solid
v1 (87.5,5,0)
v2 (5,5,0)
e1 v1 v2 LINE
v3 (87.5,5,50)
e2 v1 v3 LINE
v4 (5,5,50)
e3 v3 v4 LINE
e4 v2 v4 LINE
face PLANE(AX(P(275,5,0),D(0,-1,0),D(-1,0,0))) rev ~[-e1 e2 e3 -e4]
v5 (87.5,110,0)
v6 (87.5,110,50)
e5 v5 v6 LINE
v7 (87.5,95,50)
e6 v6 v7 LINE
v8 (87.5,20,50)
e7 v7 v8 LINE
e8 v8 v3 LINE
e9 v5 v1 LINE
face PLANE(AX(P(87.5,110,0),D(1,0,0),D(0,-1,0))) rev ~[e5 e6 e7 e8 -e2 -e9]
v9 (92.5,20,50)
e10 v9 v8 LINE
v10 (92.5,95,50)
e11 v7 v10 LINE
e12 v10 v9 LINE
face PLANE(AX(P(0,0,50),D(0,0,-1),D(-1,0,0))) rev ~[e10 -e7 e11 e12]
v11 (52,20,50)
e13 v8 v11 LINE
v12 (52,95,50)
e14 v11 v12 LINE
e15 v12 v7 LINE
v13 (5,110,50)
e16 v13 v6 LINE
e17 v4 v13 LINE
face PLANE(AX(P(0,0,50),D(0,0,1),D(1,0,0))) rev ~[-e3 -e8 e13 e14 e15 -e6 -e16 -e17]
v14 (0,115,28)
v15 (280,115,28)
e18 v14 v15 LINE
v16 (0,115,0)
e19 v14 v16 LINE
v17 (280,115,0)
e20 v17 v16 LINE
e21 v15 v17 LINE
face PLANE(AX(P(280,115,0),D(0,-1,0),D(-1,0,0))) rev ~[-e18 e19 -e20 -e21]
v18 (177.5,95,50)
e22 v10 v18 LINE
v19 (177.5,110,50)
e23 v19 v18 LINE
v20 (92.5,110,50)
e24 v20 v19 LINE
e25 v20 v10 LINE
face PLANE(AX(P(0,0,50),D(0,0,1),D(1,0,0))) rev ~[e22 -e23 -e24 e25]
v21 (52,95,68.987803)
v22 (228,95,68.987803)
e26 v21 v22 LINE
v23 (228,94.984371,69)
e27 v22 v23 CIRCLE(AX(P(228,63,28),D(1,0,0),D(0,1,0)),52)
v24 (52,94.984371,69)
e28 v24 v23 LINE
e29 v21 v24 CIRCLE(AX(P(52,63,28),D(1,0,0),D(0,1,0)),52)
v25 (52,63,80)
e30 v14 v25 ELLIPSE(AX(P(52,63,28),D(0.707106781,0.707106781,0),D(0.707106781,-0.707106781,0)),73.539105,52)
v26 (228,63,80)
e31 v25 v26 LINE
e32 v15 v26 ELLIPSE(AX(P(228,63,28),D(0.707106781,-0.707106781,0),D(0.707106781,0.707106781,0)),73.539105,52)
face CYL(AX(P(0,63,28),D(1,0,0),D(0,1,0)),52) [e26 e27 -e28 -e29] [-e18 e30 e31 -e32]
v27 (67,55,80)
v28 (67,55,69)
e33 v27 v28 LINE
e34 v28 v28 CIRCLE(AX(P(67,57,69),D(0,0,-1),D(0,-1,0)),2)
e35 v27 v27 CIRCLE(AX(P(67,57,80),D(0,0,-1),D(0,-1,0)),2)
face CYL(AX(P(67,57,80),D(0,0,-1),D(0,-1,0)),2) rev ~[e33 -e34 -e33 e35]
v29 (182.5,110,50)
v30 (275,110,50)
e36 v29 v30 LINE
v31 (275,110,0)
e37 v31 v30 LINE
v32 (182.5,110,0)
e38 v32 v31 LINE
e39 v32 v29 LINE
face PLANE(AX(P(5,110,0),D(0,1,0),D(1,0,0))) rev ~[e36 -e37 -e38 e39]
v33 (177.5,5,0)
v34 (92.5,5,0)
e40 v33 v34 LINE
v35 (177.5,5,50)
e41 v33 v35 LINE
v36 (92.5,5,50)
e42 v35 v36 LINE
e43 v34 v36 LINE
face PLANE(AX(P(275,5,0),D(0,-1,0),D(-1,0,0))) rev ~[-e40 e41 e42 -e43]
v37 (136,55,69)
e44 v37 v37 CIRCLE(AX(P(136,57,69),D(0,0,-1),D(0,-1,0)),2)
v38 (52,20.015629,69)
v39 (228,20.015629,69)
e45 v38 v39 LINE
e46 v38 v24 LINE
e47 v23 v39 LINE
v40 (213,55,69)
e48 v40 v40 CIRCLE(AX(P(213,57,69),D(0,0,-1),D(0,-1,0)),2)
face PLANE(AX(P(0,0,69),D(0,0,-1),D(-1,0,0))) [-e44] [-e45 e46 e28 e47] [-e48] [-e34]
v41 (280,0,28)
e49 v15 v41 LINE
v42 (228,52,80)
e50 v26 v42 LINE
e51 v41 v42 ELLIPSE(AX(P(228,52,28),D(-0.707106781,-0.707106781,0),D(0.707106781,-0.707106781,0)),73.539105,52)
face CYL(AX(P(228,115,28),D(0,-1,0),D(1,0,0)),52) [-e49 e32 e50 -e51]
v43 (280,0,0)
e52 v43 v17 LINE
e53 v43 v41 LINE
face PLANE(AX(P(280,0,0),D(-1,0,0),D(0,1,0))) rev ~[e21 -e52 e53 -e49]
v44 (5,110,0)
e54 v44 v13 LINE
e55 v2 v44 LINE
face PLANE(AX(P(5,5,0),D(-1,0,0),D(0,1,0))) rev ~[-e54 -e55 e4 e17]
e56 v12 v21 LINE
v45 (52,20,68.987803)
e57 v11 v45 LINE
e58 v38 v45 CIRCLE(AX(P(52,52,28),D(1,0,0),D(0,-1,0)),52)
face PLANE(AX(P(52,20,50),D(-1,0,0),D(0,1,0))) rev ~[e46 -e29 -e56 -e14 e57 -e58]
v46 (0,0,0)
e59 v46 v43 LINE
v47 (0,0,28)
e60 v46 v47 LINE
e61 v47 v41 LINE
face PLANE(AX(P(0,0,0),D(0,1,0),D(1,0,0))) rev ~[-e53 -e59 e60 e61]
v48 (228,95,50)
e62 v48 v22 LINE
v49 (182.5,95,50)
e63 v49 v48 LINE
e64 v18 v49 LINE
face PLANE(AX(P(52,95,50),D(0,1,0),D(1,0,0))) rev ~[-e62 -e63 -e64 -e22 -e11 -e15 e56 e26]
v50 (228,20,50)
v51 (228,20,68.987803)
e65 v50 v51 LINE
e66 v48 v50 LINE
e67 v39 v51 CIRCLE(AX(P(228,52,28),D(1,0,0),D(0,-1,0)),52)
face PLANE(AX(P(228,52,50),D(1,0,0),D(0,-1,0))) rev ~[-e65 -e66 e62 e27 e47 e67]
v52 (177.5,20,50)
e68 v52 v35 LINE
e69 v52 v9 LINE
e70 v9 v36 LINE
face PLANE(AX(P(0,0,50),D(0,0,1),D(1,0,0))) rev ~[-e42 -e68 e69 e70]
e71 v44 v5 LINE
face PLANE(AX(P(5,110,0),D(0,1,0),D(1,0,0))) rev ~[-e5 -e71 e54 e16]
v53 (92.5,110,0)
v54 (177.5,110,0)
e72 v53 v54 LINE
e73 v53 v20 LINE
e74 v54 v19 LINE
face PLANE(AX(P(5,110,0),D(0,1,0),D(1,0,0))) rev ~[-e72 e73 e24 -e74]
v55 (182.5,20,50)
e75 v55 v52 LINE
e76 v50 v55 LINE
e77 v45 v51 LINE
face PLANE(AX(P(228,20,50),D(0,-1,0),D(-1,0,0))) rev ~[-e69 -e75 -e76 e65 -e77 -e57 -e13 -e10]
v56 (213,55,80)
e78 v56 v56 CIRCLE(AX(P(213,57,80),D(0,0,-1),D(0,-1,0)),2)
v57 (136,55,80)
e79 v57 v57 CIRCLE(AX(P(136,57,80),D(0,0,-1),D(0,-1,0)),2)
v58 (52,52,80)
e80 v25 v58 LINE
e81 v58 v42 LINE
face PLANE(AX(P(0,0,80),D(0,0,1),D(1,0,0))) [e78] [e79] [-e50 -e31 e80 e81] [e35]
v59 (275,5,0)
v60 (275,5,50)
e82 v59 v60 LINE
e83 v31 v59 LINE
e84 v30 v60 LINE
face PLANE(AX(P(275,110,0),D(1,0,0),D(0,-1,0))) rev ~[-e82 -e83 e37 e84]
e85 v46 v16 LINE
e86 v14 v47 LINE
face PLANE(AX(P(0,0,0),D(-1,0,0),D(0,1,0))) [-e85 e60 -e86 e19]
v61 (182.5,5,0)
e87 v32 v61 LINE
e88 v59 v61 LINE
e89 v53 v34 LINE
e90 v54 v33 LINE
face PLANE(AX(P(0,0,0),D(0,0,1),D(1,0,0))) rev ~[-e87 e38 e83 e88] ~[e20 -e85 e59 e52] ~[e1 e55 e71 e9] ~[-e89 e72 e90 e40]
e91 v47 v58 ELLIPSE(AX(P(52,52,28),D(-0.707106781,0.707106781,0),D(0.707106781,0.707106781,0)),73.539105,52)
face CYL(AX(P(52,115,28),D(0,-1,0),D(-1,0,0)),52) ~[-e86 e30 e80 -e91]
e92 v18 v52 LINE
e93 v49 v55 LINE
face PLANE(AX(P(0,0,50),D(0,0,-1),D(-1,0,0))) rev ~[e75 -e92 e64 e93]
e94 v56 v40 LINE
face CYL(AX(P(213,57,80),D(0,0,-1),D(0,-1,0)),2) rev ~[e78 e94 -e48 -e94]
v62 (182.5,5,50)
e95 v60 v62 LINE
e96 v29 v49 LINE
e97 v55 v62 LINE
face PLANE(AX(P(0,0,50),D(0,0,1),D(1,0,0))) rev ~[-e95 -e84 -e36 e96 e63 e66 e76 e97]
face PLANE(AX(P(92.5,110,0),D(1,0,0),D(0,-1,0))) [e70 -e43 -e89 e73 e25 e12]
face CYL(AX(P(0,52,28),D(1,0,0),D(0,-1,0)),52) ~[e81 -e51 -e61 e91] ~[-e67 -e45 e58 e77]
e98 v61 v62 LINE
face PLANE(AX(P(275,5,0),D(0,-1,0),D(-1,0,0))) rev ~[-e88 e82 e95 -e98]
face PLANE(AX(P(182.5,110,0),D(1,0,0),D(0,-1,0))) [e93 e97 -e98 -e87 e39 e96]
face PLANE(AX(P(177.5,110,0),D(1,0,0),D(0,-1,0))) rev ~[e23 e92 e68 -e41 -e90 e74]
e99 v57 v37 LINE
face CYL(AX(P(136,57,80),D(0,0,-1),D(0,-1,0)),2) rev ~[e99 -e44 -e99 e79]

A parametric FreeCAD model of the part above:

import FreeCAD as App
import Part
import Sketcher

V = App.Vector
Q = App.Units.Quantity


def edges_at(feature, points):
    """Names of the edges that pass closest to the given points."""
    edges = feature.Shape.Edges
    near = lambda p: min(range(len(edges)), key=lambda i: edges[i].distToShape(Part.Vertex(*p))[0])
    return sorted({f"Edge{near(p) + 1}" for p in points})


def add_polygon(sketch, points):
    """Adds a closed chain of lines whose ends are joined by coincident constraints."""
    first, n = sketch.GeometryCount, len(points)
    for a, b in zip(points, points[1:] + points[:1]):
        sketch.addGeometry(Part.LineSegment(App.Vector(*a, 0), App.Vector(*b, 0)), False)
    for i in range(n):
        sketch.addConstraint(Sketcher.Constraint("Coincident", first + i, 2, first + (i + 1) % n, 1))

doc = App.newDocument("Part")
body = doc.addObject("PartDesign::Body", "Body")

# Sketch on XY plane
sketch1 = body.newObject("Sketcher::SketchObject", "Sketch")
sketch1.AttachmentSupport = (doc.getObject("XY_Plane"), [""])
sketch1.MapMode = "FlatFace"
add_polygon(sketch1, [(0, 115), (0, 0), (280, 0), (280, 115)])  # lines 0-3
add_polygon(sketch1, [(5, 5), (5, 110), (275, 110), (275, 5)])  # lines 4-7
sketch1.addConstraint(Sketcher.Constraint("Vertical", 0))
sketch1.addConstraint(Sketcher.Constraint("Horizontal", 1))
sketch1.addConstraint(Sketcher.Constraint("Vertical", 2))
sketch1.addConstraint(Sketcher.Constraint("Horizontal", 3))
sketch1.addConstraint(Sketcher.Constraint("Vertical", 4))
sketch1.addConstraint(Sketcher.Constraint("Horizontal", 5))
sketch1.addConstraint(Sketcher.Constraint("Vertical", 6))
sketch1.addConstraint(Sketcher.Constraint("Horizontal", 7))
sketch1.addConstraint(Sketcher.Constraint("Coincident", 0, 2, -1, 1))
sketch1.addConstraint(Sketcher.Constraint("DistanceX", 1, 1, 1, 2, Q("280 mm")))
sketch1.addConstraint(Sketcher.Constraint("DistanceY", 0, 2, 0, 1, Q("115 mm")))
sketch1.addConstraint(Sketcher.Constraint("DistanceX", -1, 1, 4, 2, Q("5 mm")))
sketch1.addConstraint(Sketcher.Constraint("DistanceY", -1, 1, 6, 2, Q("5 mm")))
sketch1.addConstraint(Sketcher.Constraint("DistanceY", 4, 2, 3, 2, Q("5 mm")))
sketch1.addConstraint(Sketcher.Constraint("DistanceX", 5, 2, 2, 2, Q("5 mm")))
pad1 = body.newObject("PartDesign::Pad", "Pad")
pad1.Profile = sketch1
pad1.Length = 50

# Sketch on XY plane
sketch2 = body.newObject("Sketcher::SketchObject", "Sketch001")
sketch2.AttachmentSupport = (doc.getObject("XY_Plane"), [""])
sketch2.MapMode = "FlatFace"
sketch2.AttachmentOffset = App.Placement(V(0, 0, 50), App.Rotation())
add_polygon(sketch2, [(280, 115), (0, 115), (0, 0), (280, 0)])  # lines 0-3
sketch2.addConstraint(Sketcher.Constraint("Horizontal", 0))
sketch2.addConstraint(Sketcher.Constraint("Vertical", 1))
sketch2.addConstraint(Sketcher.Constraint("Horizontal", 2))
sketch2.addConstraint(Sketcher.Constraint("Vertical", 3))
sketch2.addConstraint(Sketcher.Constraint("Coincident", 1, 2, -1, 1))
sketch2.addConstraint(Sketcher.Constraint("DistanceX", 0, 2, 0, 1, Q("280 mm")))
sketch2.addConstraint(Sketcher.Constraint("DistanceY", 1, 2, 1, 1, Q("115 mm")))
pad2 = body.newObject("PartDesign::Pad", "Pad001")
pad2.Profile = sketch2
pad2.Length = 30
doc.recompute()

fillet = body.newObject("PartDesign::Fillet", "Fillet")
fillet.Base = (pad2, edges_at(pad2, [
    (140, 115, 80),
    (140, 0, 80),
    (0, 57.5, 80),
    (280, 57.5, 80),
]))
fillet.Radius = 52

# Sketch on XY plane
sketch3 = body.newObject("Sketcher::SketchObject", "Sketch002")
sketch3.AttachmentSupport = (doc.getObject("XY_Plane"), [""])
sketch3.MapMode = "FlatFace"
add_polygon(sketch3, [(88, 5), (88, 110), (92, 110), (92, 5)])  # lines 0-3
add_polygon(sketch3, [(178, 5), (178, 110), (182, 110), (182, 5)])  # lines 4-7
sketch3.addConstraint(Sketcher.Constraint("Vertical", 0))
sketch3.addConstraint(Sketcher.Constraint("Horizontal", 1))
sketch3.addConstraint(Sketcher.Constraint("Vertical", 2))
sketch3.addConstraint(Sketcher.Constraint("Horizontal", 3))
sketch3.addConstraint(Sketcher.Constraint("Vertical", 4))
sketch3.addConstraint(Sketcher.Constraint("Horizontal", 5))
sketch3.addConstraint(Sketcher.Constraint("Vertical", 6))
sketch3.addConstraint(Sketcher.Constraint("Horizontal", 7))
sketch3.addConstraint(Sketcher.Constraint("Horizontal", 1, 2, 4, 2))
sketch3.addConstraint(Sketcher.Constraint("Horizontal", 3, 2, 6, 2))
sketch3.addConstraint(Sketcher.Constraint("Equal", 3, 5))
sketch3.addConstraint(Sketcher.Constraint("DistanceX", 1, 1, 1, 2, Q("5 mm")))
sketch3.addConstraint(Sketcher.Constraint("DistanceY", -1, 1, 2, 2, Q("5 mm")))
sketch3.addConstraint(Sketcher.Constraint("DistanceX", -1, 1, 1, 2, Q("92.5 mm")))
sketch3.addConstraint(Sketcher.Constraint("DistanceX", -1, 1, 5, 2, Q("182.5 mm")))
sketch3.addConstraint(Sketcher.Constraint("DistanceY", 0, 1, 0, 2, Q("105 mm")))
pad3 = body.newObject("PartDesign::Pad", "Pad002")
pad3.Profile = sketch3
pad3.Length = 50

# Sketch on XY plane
sketch4 = body.newObject("Sketcher::SketchObject", "Sketch003")
sketch4.AttachmentSupport = (doc.getObject("XY_Plane"), [""])
sketch4.MapMode = "FlatFace"
sketch4.AttachmentOffset = App.Placement(V(0, 0, 80), App.Rotation())
sketch4.addGeometry(Part.Circle(V(67, 57, 0), V(0, 0, 1), 2), False)
sketch4.addGeometry(Part.Circle(V(136, 57, 0), V(0, 0, 1), 2), False)
sketch4.addGeometry(Part.Circle(V(213, 57, 0), V(0, 0, 1), 2), False)
sketch4.addConstraint(Sketcher.Constraint("Equal", 0, 1))
sketch4.addConstraint(Sketcher.Constraint("Equal", 1, 2))
sketch4.addConstraint(Sketcher.Constraint("Horizontal", 0, 3, 1, 3))
sketch4.addConstraint(Sketcher.Constraint("Horizontal", 1, 3, 2, 3))
sketch4.addConstraint(Sketcher.Constraint("Diameter", 0, Q("4 mm")))
sketch4.addConstraint(Sketcher.Constraint("DistanceX", -1, 1, 0, 3, Q("67 mm")))
sketch4.addConstraint(Sketcher.Constraint("DistanceY", -1, 1, 0, 3, Q("57 mm")))
sketch4.addConstraint(Sketcher.Constraint("DistanceX", -1, 1, 1, 3, Q("136 mm")))
sketch4.addConstraint(Sketcher.Constraint("DistanceX", -1, 1, 2, 3, Q("213 mm")))
doc.recompute()
hole = body.newObject("PartDesign::Hole", "Hole")
hole.Profile = sketch4
hole.ThreadType = "None"
hole.Diameter = 4
hole.DepthType = "ThroughAll"

# Sketch on XY plane
sketch5 = body.newObject("Sketcher::SketchObject", "Sketch004")
sketch5.AttachmentSupport = (doc.getObject("XY_Plane"), [""])
sketch5.MapMode = "FlatFace"
sketch5.AttachmentOffset = App.Placement(V(0, 0, 50), App.Rotation())
add_polygon(sketch5, [(52, 20), (52, 95), (228, 95), (228, 20)])  # lines 0-3
sketch5.addConstraint(Sketcher.Constraint("Vertical", 0))
sketch5.addConstraint(Sketcher.Constraint("Horizontal", 1))
sketch5.addConstraint(Sketcher.Constraint("Vertical", 2))
sketch5.addConstraint(Sketcher.Constraint("Horizontal", 3))
sketch5.addConstraint(Sketcher.Constraint("DistanceX", 1, 1, 1, 2, Q("176 mm")))
sketch5.addConstraint(Sketcher.Constraint("DistanceY", 0, 1, 0, 2, Q("75 mm")))
sketch5.addConstraint(Sketcher.Constraint("DistanceX", -1, 1, 0, 2, Q("52 mm")))
sketch5.addConstraint(Sketcher.Constraint("DistanceY", -1, 1, 0, 2, Q("95 mm")))
pocket1 = body.newObject("PartDesign::Pocket", "Pocket")
pocket1.Profile = sketch5
pocket1.Length = 19
pocket1.Reversed = True

doc.recompute()
